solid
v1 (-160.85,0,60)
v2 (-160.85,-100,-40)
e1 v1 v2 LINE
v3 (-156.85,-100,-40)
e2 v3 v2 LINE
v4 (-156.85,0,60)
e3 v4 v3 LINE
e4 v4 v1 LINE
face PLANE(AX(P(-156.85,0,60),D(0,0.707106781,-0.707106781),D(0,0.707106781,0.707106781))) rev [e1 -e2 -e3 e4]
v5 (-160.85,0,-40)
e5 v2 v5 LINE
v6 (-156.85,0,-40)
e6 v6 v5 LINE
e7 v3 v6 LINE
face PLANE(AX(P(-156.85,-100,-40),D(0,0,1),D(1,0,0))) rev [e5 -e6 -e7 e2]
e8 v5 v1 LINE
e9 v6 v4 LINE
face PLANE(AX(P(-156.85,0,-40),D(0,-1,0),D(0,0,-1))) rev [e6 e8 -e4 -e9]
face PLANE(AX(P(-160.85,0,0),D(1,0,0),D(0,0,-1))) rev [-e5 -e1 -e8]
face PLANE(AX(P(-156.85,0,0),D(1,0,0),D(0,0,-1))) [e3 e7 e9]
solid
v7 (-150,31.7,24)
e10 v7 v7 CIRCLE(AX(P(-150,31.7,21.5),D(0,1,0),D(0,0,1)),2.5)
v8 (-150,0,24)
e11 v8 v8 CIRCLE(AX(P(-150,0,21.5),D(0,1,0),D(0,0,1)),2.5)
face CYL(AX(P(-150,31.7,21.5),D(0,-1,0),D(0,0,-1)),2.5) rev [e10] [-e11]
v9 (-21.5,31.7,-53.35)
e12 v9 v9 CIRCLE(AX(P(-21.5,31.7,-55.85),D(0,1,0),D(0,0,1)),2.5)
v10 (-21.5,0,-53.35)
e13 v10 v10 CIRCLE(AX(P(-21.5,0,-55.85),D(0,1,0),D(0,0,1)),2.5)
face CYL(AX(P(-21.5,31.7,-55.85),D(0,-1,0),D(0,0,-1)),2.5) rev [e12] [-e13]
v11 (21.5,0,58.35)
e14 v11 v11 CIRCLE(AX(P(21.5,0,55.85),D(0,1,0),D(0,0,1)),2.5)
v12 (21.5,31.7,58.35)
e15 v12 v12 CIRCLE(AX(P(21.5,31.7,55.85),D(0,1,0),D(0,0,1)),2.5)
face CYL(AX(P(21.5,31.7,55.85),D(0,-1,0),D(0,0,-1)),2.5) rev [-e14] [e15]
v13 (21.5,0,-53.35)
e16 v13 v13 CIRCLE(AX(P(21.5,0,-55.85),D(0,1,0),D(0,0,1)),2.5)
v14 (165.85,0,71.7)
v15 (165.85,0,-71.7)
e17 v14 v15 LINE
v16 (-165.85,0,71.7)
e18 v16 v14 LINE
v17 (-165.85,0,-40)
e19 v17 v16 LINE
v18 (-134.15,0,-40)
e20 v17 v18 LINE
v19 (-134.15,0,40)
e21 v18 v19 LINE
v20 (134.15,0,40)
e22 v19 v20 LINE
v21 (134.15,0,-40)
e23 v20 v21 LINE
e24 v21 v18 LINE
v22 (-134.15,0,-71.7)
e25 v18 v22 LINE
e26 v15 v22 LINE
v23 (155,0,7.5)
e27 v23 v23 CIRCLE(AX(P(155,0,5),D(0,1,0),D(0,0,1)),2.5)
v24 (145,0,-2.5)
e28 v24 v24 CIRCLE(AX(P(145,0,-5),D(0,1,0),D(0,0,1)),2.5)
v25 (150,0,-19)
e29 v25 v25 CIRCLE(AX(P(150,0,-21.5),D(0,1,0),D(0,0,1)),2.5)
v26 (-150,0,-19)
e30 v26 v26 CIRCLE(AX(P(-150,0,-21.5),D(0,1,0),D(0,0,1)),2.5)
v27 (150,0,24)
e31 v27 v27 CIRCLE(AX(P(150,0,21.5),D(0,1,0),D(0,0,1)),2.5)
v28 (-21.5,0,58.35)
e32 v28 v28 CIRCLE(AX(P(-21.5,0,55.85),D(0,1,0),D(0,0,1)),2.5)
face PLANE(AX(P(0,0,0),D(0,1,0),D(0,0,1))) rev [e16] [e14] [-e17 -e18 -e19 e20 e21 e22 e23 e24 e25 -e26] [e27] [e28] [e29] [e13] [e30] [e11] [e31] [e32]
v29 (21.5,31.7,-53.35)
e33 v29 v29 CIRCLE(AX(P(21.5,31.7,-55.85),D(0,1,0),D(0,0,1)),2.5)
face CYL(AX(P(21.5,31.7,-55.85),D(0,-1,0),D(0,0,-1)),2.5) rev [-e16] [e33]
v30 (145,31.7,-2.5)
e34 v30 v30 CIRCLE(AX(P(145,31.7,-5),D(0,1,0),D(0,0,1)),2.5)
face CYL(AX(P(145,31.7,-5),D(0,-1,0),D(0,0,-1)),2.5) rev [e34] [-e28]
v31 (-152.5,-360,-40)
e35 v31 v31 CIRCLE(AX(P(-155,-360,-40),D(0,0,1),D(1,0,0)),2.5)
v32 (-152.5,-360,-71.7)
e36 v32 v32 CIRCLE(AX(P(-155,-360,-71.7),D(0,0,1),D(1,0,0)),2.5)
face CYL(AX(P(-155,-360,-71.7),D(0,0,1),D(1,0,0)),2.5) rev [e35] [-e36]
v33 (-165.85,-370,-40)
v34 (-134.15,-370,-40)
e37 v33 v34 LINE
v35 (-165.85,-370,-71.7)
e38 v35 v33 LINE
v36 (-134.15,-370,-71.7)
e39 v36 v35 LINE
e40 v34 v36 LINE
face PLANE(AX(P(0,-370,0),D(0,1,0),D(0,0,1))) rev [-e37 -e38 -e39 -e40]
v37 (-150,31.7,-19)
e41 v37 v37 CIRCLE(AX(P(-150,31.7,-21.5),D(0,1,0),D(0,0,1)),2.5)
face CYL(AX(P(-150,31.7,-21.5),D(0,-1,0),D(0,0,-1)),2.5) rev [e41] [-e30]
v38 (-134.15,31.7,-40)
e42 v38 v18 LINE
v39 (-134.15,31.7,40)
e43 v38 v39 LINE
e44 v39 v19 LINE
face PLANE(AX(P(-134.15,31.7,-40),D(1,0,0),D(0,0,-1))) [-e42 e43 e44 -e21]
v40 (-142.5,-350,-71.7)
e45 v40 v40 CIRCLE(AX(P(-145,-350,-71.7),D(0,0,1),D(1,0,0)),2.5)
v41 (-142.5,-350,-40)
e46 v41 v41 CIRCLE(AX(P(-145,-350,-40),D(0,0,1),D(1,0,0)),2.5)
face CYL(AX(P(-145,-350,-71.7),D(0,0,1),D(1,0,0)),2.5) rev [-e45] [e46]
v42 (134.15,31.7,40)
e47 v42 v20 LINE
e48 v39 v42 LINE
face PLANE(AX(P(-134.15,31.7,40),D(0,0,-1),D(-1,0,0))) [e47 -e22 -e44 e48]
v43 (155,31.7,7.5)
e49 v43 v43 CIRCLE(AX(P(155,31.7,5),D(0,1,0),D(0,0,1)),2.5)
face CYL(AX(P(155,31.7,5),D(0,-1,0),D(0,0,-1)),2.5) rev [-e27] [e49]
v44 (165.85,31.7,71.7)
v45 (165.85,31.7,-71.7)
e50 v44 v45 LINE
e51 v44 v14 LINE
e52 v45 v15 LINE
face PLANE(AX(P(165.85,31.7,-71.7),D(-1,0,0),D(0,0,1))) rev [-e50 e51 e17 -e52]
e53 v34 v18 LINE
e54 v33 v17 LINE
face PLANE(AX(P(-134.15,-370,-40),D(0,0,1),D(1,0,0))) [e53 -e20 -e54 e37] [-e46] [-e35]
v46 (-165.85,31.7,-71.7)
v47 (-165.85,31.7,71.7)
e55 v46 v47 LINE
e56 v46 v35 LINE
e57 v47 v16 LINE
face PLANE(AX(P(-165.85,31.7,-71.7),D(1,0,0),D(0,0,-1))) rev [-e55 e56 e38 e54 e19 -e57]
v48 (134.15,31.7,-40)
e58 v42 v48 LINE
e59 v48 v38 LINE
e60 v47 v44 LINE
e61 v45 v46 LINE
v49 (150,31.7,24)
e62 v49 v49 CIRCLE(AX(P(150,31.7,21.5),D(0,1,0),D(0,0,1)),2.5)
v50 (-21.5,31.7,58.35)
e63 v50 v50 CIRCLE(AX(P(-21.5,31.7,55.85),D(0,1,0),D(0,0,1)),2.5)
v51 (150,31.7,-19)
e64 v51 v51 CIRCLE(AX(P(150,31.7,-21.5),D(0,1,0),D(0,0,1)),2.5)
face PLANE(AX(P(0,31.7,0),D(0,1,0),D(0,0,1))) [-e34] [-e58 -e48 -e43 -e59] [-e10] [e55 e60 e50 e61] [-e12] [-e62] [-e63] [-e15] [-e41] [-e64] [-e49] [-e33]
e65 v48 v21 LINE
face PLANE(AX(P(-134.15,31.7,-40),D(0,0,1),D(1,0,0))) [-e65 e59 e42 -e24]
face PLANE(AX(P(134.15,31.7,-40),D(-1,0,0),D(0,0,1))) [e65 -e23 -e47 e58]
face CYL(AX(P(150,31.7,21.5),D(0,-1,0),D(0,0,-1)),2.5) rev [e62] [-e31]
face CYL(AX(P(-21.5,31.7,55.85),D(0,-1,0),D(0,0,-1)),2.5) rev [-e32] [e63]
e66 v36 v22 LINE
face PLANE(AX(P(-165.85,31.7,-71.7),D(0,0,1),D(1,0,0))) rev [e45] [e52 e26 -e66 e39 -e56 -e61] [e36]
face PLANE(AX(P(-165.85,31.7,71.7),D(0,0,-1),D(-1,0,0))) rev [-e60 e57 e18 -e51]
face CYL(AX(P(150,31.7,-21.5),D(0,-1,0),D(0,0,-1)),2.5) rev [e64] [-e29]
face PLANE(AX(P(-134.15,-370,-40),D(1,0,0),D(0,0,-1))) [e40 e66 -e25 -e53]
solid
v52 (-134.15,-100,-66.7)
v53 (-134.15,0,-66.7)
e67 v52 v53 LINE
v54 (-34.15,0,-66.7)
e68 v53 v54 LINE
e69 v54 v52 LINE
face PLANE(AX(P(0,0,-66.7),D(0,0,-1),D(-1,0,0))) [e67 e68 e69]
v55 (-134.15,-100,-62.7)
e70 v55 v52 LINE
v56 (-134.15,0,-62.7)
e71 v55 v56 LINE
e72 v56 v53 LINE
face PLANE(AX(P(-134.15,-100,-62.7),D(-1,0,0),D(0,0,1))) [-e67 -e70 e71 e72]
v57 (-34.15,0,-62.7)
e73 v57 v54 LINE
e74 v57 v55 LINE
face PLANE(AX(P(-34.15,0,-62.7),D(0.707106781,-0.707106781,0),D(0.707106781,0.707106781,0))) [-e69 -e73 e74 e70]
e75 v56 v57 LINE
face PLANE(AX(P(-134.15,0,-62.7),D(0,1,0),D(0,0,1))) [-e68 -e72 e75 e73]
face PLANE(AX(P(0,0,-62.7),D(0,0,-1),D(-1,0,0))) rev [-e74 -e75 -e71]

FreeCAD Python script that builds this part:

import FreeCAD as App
import Part
import Sketcher
Q = App.Units.Quantity

doc = App.newDocument("Part")
body = doc.addObject("PartDesign::Body", "Body")

# Sketch on XZ plane
sketch1 = body.newObject("Sketcher::SketchObject", "Sketch")
sketch1.AttachmentSupport = (doc.getObject("XZ_Plane"), [""])
sketch1.MapMode = "FlatFace"
sketch1.addGeometry([
    Part.LineSegment(App.Vector(-166, -72, 0), App.Vector(-166, 72, 0)),
    Part.LineSegment(App.Vector(-166, 72, 0), App.Vector(166, 72, 0)),
    Part.LineSegment(App.Vector(166, 72, 0), App.Vector(166, -72, 0)),
    Part.LineSegment(App.Vector(166, -72, 0), App.Vector(-166, -72, 0)),
], False)
sketch1.addConstraint([
    Sketcher.Constraint("Coincident", 0, 2, 1, 1),
    Sketcher.Constraint("Coincident", 1, 2, 2, 1),
    Sketcher.Constraint("Coincident", 2, 2, 3, 1),
    Sketcher.Constraint("Coincident", 3, 2, 0, 1),
    Sketcher.Constraint("Vertical", 0),
    Sketcher.Constraint("Horizontal", 1),
    Sketcher.Constraint("Vertical", 2),
    Sketcher.Constraint("Horizontal", 3),
    Sketcher.Constraint("Symmetric", 0, 2, 2, 2, -1, 1),
    Sketcher.Constraint("DistanceX", 1, 1, 1, 2, Q("331.7 mm")),
    Sketcher.Constraint("DistanceY", 0, 1, 0, 2, Q("143.4 mm")),
])
pad1 = body.newObject("PartDesign::Pad", "Pad")
pad1.Profile = sketch1
pad1.Length = 31.7
pad1.Reversed = True

# Sketch on XZ plane
sketch2 = body.newObject("Sketcher::SketchObject", "Sketch001")
sketch2.AttachmentSupport = (doc.getObject("XZ_Plane"), [""])
sketch2.MapMode = "FlatFace"
sketch2.addGeometry([
    Part.LineSegment(App.Vector(-134, -40, 0), App.Vector(-134, 40, 0)),
    Part.LineSegment(App.Vector(-134, 40, 0), App.Vector(134, 40, 0)),
    Part.LineSegment(App.Vector(134, 40, 0), App.Vector(134, -40, 0)),
    Part.LineSegment(App.Vector(134, -40, 0), App.Vector(-134, -40, 0)),
], False)
sketch2.addConstraint([
    Sketcher.Constraint("Coincident", 0, 2, 1, 1),
    Sketcher.Constraint("Coincident", 1, 2, 2, 1),
    Sketcher.Constraint("Coincident", 2, 2, 3, 1),
    Sketcher.Constraint("Coincident", 3, 2, 0, 1),
    Sketcher.Constraint("Vertical", 0),
    Sketcher.Constraint("Horizontal", 1),
    Sketcher.Constraint("Vertical", 2),
    Sketcher.Constraint("Horizontal", 3),
    Sketcher.Constraint("Symmetric", 0, 2, 2, 2, -1, 1),
    Sketcher.Constraint("DistanceY", 0, 1, 0, 2, Q("80 mm")),
    Sketcher.Constraint("DistanceX", 1, 1, 1, 2, Q("268.3 mm")),
])
pocket1 = body.newObject("PartDesign::Pocket", "Pocket")
pocket1.Profile = sketch2
pocket1.Length = 31.7

# Sketch on XZ plane
sketch3 = body.newObject("Sketcher::SketchObject", "Sketch002")
sketch3.AttachmentSupport = (doc.getObject("XZ_Plane"), [""])
sketch3.MapMode = "FlatFace"
sketch3.addGeometry([
    Part.Circle(App.Vector(21.5, 55.9, 0), App.Vector(0, 0, 1), 2.5),  # 0
    Part.Circle(App.Vector(-21.5, 55.9, 0), App.Vector(0, 0, 1), 2.5),  # 1
    Part.Circle(App.Vector(21.5, -55.9, 0), App.Vector(0, 0, 1), 2.5),  # 2
    Part.Circle(App.Vector(-21.5, -55.9, 0), App.Vector(0, 0, 1), 2.5),  # 3
    Part.Circle(App.Vector(150, 21.5, 0), App.Vector(0, 0, 1), 2.5),  # 4
    Part.Circle(App.Vector(150, -21.5, 0), App.Vector(0, 0, 1), 2.5),  # 5
    Part.Circle(App.Vector(-150, -21.5, 0), App.Vector(0, 0, 1), 2.5),  # 6
    Part.Circle(App.Vector(-150, 21.5, 0), App.Vector(0, 0, 1), 2.5),  # 7
    Part.Circle(App.Vector(145, -5, 0), App.Vector(0, 0, 1), 2.5),  # 8
    Part.Circle(App.Vector(155, 5, 0), App.Vector(0, 0, 1), 2.5),  # 9
], False)
sketch3.addConstraint([
    Sketcher.Constraint("Equal", 0, 1),
    Sketcher.Constraint("Equal", 1, 2),
    Sketcher.Constraint("Equal", 2, 3),
    Sketcher.Constraint("Equal", 3, 4),
    Sketcher.Constraint("Equal", 4, 5),
    Sketcher.Constraint("Equal", 5, 6),
    Sketcher.Constraint("Equal", 6, 7),
    Sketcher.Constraint("Equal", 7, 8),
    Sketcher.Constraint("Equal", 8, 9),
    Sketcher.Constraint("Symmetric", 1, 3, 2, 3, -1, 1),
    Sketcher.Constraint("Symmetric", 0, 3, 3, 3, -1, 1),
    Sketcher.Constraint("Symmetric", 4, 3, 6, 3, -1, 1),
    Sketcher.Constraint("Symmetric", 5, 3, 7, 3, -1, 1),
    Sketcher.Constraint("Symmetric", 0, 3, 1, 3, -2),
    Sketcher.Constraint("Symmetric", 5, 3, 6, 3, -2),
    Sketcher.Constraint("Diameter", 0, Q("5 mm")),
    Sketcher.Constraint("DistanceX", -1, 1, 4, 3, Q("150 mm")),
    Sketcher.Constraint("DistanceX", -1, 1, 8, 3, Q("145 mm")),
    Sketcher.Constraint("DistanceY", 8, 3, -1, 1, Q("5 mm")),
    Sketcher.Constraint("DistanceX", -1, 1, 9, 3, Q("155 mm")),
    Sketcher.Constraint("DistanceY", -1, 1, 9, 3, Q("5 mm")),
    Sketcher.Constraint("DistanceX", 1, 3, 0, 3, Q("43 mm")),
    Sketcher.Constraint("DistanceY", 5, 3, 4, 3, Q("43 mm")),
    Sketcher.Constraint("DistanceY", 2, 3, 0, 3, Q("111.7 mm")),
])
pocket2 = body.newObject("PartDesign::Pocket", "Pocket001")
pocket2.Profile = sketch3
pocket2.Length = 31.7

# Sketch on XZ plane
sketch4 = body.newObject("Sketcher::SketchObject", "Sketch003")
sketch4.AttachmentSupport = (doc.getObject("XZ_Plane"), [""])
sketch4.MapMode = "FlatFace"
sketch4.addGeometry([
    Part.LineSegment(App.Vector(-166, -72, 0), App.Vector(-166, -40, 0)),
    Part.LineSegment(App.Vector(-166, -40, 0), App.Vector(-134, -40, 0)),
    Part.LineSegment(App.Vector(-134, -40, 0), App.Vector(-134, -72, 0)),
    Part.LineSegment(App.Vector(-134, -72, 0), App.Vector(-166, -72, 0)),
], False)
sketch4.addConstraint([
    Sketcher.Constraint("Coincident", 0, 2, 1, 1),
    Sketcher.Constraint("Coincident", 1, 2, 2, 1),
    Sketcher.Constraint("Coincident", 2, 2, 3, 1),
    Sketcher.Constraint("Coincident", 3, 2, 0, 1),
    Sketcher.Constraint("Vertical", 0),
    Sketcher.Constraint("Horizontal", 1),
    Sketcher.Constraint("Vertical", 2),
    Sketcher.Constraint("Horizontal", 3),
    Sketcher.Constraint("Equal", 3, 0),
    Sketcher.Constraint("DistanceX", 1, 1, 1, 2, Q("31.7 mm")),
    Sketcher.Constraint("DistanceY", 0, 2, -1, 1, Q("40 mm")),
    Sketcher.Constraint("DistanceX", 0, 2, -1, 1, Q("165.85 mm")),
])
pad2 = body.newObject("PartDesign::Pad", "Pad001")
pad2.Profile = sketch4
pad2.Length = 370

# Sketch on XY plane
sketch5 = body.newObject("Sketcher::SketchObject", "Sketch004")
sketch5.AttachmentSupport = (doc.getObject("XY_Plane"), [""])
sketch5.MapMode = "FlatFace"
sketch5.addGeometry([
    Part.Circle(App.Vector(-155, -360, 0), App.Vector(0, 0, 1), 2.5),
    Part.Circle(App.Vector(-145, -350, 0), App.Vector(0, 0, 1), 2.5),
], False)
sketch5.addConstraint([
    Sketcher.Constraint("Equal", 0, 1),
    Sketcher.Constraint("Diameter", 0, Q("5 mm")),
    Sketcher.Constraint("DistanceX", 0, 3, -1, 1, Q("155 mm")),
    Sketcher.Constraint("DistanceY", 0, 3, -1, 1, Q("360 mm")),
    Sketcher.Constraint("DistanceX", 1, 3, -1, 1, Q("145 mm")),
    Sketcher.Constraint("DistanceY", 1, 3, -1, 1, Q("350 mm")),
])
pocket3 = body.newObject("PartDesign::Pocket", "Pocket002")
pocket3.Profile = sketch5
pocket3.Type = "ThroughAll"
body2 = doc.addObject("PartDesign::Body", "Body001")

# Sketch on YZ plane
sketch6 = body2.newObject("Sketcher::SketchObject", "Sketch005")
sketch6.AttachmentSupport = (doc.getObject("YZ_Plane001"), [""])
sketch6.MapMode = "FlatFace"
sketch6.AttachmentOffset = App.Placement(App.Vector(0, 0, -160.85), App.Rotation())
sketch6.addGeometry([
    Part.LineSegment(App.Vector(0, -40, 0), App.Vector(0, 60, 0)),
    Part.LineSegment(App.Vector(0, 60, 0), App.Vector(-100, -40, 0)),
    Part.LineSegment(App.Vector(-100, -40, 0), App.Vector(0, -40, 0)),
], False)
sketch6.addConstraint([
    Sketcher.Constraint("Coincident", 0, 2, 1, 1),
    Sketcher.Constraint("Coincident", 1, 2, 2, 1),
    Sketcher.Constraint("Coincident", 2, 2, 0, 1),
    Sketcher.Constraint("Vertical", 0),
    Sketcher.Constraint("Horizontal", 2),
    Sketcher.Constraint("PointOnObject", 0, 2, -2),
    Sketcher.Constraint("Equal", 2, 0),
    Sketcher.Constraint("DistanceX", 2, 1, 2, 2, Q("100 mm")),
    Sketcher.Constraint("DistanceY", -1, 1, 0, 2, Q("60 mm")),
])
pad3 = body2.newObject("PartDesign::Pad", "Pad002")
pad3.Profile = sketch6
pad3.Length = 4
body3 = doc.addObject("PartDesign::Body", "Body002")

# Sketch on XY plane
sketch7 = body3.newObject("Sketcher::SketchObject", "Sketch006")
sketch7.AttachmentSupport = (doc.getObject("XY_Plane002"), [""])
sketch7.MapMode = "FlatFace"
sketch7.AttachmentOffset = App.Placement(App.Vector(0, 0, -66.7), App.Rotation())
sketch7.addGeometry([
    Part.LineSegment(App.Vector(-134, 0, 0), App.Vector(-34, 0, 0)),
    Part.LineSegment(App.Vector(-34, 0, 0), App.Vector(-134, -100, 0)),
    Part.LineSegment(App.Vector(-134, -100, 0), App.Vector(-134, 0, 0)),
], False)
sketch7.addConstraint([
    Sketcher.Constraint("Coincident", 0, 2, 1, 1),
    Sketcher.Constraint("Coincident", 1, 2, 2, 1),
    Sketcher.Constraint("Coincident", 2, 2, 0, 1),
    Sketcher.Constraint("Horizontal", 0),
    Sketcher.Constraint("Vertical", 2),
    Sketcher.Constraint("PointOnObject", 0, 2, -1),
    Sketcher.Constraint("Equal", 0, 2),
    Sketcher.Constraint("DistanceX", 0, 1, 0, 2, Q("100 mm")),
    Sketcher.Constraint("DistanceX", 0, 2, -1, 1, Q("34.15 mm")),
])
pad4 = body3.newObject("PartDesign::Pad", "Pad003")
pad4.Profile = sketch7
pad4.Length = 4

doc.recompute()
